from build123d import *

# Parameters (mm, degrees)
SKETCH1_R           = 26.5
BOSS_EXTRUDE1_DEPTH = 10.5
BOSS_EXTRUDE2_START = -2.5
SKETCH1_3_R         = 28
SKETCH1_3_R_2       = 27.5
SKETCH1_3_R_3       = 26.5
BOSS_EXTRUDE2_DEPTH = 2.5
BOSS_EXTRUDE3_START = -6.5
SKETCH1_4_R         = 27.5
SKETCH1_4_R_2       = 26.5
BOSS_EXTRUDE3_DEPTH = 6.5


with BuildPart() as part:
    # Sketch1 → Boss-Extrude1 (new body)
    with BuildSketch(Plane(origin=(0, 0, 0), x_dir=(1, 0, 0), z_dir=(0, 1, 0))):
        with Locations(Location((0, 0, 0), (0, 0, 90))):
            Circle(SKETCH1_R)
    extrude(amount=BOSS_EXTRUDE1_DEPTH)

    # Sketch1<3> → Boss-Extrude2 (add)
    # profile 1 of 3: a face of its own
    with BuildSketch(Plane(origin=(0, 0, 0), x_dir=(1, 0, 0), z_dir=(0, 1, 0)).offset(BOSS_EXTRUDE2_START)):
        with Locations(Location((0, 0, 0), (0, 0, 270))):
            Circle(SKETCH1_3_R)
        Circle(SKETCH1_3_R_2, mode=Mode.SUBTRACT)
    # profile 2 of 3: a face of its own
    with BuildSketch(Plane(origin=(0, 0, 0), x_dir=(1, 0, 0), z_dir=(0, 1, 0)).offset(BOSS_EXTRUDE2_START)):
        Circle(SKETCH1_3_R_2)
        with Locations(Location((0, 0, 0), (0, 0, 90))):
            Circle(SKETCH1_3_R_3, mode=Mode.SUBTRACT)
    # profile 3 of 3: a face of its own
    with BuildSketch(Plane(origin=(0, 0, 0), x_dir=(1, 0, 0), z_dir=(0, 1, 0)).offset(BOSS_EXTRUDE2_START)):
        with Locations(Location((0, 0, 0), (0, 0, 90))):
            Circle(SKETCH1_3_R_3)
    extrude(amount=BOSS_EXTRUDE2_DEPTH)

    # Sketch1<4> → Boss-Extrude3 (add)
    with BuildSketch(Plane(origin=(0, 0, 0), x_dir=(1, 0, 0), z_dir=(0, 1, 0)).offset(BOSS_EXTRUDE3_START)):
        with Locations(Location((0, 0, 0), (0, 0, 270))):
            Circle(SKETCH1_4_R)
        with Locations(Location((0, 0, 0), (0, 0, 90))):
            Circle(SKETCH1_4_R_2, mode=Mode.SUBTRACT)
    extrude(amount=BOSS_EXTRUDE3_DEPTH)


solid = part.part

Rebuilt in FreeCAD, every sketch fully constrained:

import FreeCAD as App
import Part
import Sketcher

V = App.Vector
Q = App.Units.Quantity

doc = App.newDocument("Part")
params = doc.addObject("Spreadsheet::Sheet", "Params")
for row, (alias, value) in enumerate([
    ("sketch1_diameter", "53 mm"),
    ("pad1_length", "10.5 mm"),
    ("sketch2_diameter", "56 mm"),
    ("pad2_length", "2.5 mm"),
    ("sketch3_diameter", "55 mm"),
    ("sketch3_diameter2", "53 mm"),
    ("pad3_length", "6.5 mm"),
], start=1):
    params.set(f"A{row}", alias)
    params.set(f"B{row}", "=" + value)
    params.setAlias(f"B{row}", alias)

body = doc.addObject("PartDesign::Body", "Body")

# Sketch on XZ plane
sketch1 = body.newObject("Sketcher::SketchObject", "Sketch")
sketch1.AttachmentSupport = (doc.getObject("XZ_Plane"), [""])
sketch1.MapMode = "FlatFace"
sketch1.addGeometry(Part.Circle(V(0, 0, 0), V(0, 0, 1), 26.5), False)
sketch1.addConstraint(Sketcher.Constraint("Coincident", 0, 3, -1, 1))
sketch1.addConstraint(Sketcher.Constraint("Diameter", 0, Q("53 mm")))
sketch1.setExpression("Constraints[1]", "Params.sketch1_diameter")
pad1 = body.newObject("PartDesign::Pad", "Pad")
pad1.Profile = sketch1
pad1.setExpression("Length", "Params.pad1_length")
pad1.Reversed = True

# Sketch on XZ plane
sketch2 = body.newObject("Sketcher::SketchObject", "Sketch001")
sketch2.AttachmentSupport = (doc.getObject("XZ_Plane"), [""])
sketch2.MapMode = "FlatFace"
sketch2.AttachmentOffset = App.Placement(V(0, 0, 2.5), App.Rotation())
sketch2.addGeometry(Part.Circle(V(0, 0, 0), V(0, 0, 1), 28), False)
sketch2.addConstraint(Sketcher.Constraint("Coincident", 0, 3, -1, 1))
sketch2.addConstraint(Sketcher.Constraint("Diameter", 0, Q("56 mm")))
sketch2.setExpression("Constraints[1]", "Params.sketch2_diameter")
pad2 = body.newObject("PartDesign::Pad", "Pad001")
pad2.Profile = sketch2
pad2.setExpression("Length", "Params.pad2_length")
pad2.Reversed = True

# Sketch on XZ plane
sketch3 = body.newObject("Sketcher::SketchObject", "Sketch002")
sketch3.AttachmentSupport = (doc.getObject("XZ_Plane"), [""])
sketch3.MapMode = "FlatFace"
sketch3.AttachmentOffset = App.Placement(V(0, 0, 6.5), App.Rotation())
sketch3.addGeometry(Part.Circle(V(0, 0, 0), V(0, 0, 1), 27.5), False)
sketch3.addGeometry(Part.Circle(V(0, 0, 0), V(0, 0, 1), 26.5), False)
sketch3.addConstraint(Sketcher.Constraint("Coincident", 0, 3, -1, 1))
sketch3.addConstraint(Sketcher.Constraint("Coincident", 1, 3, -1, 1))
sketch3.addConstraint(Sketcher.Constraint("Diameter", 0, Q("55 mm")))
sketch3.addConstraint(Sketcher.Constraint("Diameter", 1, Q("53 mm")))
sketch3.setExpression("Constraints[2]", "Params.sketch3_diameter")
sketch3.setExpression("Constraints[3]", "Params.sketch3_diameter2")
pad3 = body.newObject("PartDesign::Pad", "Pad002")
pad3.Profile = sketch3
pad3.setExpression("Length", "Params.pad3_length")
pad3.Reversed = True

doc.recompute()
